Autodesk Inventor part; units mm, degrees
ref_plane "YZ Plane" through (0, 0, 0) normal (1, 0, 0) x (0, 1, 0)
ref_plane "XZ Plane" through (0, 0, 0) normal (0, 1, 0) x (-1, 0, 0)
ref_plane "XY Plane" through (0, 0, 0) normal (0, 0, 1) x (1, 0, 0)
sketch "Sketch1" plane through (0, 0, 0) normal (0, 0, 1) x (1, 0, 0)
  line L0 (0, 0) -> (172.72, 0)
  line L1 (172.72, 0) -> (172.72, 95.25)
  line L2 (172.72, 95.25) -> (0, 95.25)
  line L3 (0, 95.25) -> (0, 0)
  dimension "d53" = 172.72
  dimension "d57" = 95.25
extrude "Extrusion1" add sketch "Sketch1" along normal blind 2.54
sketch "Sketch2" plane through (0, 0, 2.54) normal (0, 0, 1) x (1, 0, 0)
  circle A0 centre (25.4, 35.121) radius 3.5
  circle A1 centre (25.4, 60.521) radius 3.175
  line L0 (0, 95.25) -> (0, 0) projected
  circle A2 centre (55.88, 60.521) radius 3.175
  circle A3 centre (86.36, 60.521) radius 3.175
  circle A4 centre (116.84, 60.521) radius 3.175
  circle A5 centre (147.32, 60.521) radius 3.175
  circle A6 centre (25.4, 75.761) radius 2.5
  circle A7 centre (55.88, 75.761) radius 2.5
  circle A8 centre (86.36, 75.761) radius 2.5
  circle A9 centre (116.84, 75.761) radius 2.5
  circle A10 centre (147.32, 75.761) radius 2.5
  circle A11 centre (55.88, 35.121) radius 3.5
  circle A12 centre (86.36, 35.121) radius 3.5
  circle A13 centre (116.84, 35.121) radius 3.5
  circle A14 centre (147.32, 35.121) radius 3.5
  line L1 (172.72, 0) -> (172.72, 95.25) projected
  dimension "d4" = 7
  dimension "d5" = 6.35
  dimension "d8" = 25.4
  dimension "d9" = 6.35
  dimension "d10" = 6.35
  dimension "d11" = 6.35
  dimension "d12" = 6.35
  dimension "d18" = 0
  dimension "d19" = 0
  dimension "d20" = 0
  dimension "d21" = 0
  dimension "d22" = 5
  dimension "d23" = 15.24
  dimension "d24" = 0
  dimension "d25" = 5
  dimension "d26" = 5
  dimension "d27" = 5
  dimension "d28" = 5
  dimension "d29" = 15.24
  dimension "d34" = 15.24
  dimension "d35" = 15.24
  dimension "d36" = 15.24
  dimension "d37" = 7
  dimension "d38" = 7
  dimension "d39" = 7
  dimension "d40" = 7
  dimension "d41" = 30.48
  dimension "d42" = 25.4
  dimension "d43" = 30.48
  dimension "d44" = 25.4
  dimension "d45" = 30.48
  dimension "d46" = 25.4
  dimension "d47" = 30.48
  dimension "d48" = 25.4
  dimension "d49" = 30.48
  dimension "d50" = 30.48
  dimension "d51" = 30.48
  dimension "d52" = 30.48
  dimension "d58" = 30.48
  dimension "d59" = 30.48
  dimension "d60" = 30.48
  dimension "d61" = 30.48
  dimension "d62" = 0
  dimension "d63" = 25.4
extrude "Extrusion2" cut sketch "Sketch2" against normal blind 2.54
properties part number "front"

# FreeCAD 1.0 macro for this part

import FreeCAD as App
import Part
import Sketcher

V = App.Vector
Q = App.Units.Quantity


def add_polygon(sketch, points):
    """Adds a closed chain of lines whose ends are joined by coincident constraints."""
    first, n = sketch.GeometryCount, len(points)
    for a, b in zip(points, points[1:] + points[:1]):
        sketch.addGeometry(Part.LineSegment(App.Vector(*a, 0), App.Vector(*b, 0)), False)
    for i in range(n):
        sketch.addConstraint(Sketcher.Constraint("Coincident", first + i, 2, first + (i + 1) % n, 1))

doc = App.newDocument("Part")
params = doc.addObject("Spreadsheet::Sheet", "Params")
for row, (alias, value) in enumerate([
    ("sketch1_width", "6.8 in"),
    ("sketch1_height", "3.75 in"),
    ("pad1_length", "0.1 in"),
    ("sketch2_diameter", "0.25 in"),
    ("pocket1_length", "0.1 in"),
], start=1):
    params.set(f"A{row}", alias)
    params.set(f"B{row}", "=" + value)
    params.setAlias(f"B{row}", alias)

body = doc.addObject("PartDesign::Body", "Body")

# Sketch on XY plane
sketch1 = body.newObject("Sketcher::SketchObject", "Sketch")
sketch1.AttachmentSupport = (doc.getObject("XY_Plane"), [""])
sketch1.MapMode = "FlatFace"
add_polygon(sketch1, [(0, 95), (0, 0), (173, 0), (173, 95)])  # lines 0-3
sketch1.addConstraint([
    Sketcher.Constraint("Vertical", 0),
    Sketcher.Constraint("Horizontal", 1),
    Sketcher.Constraint("Vertical", 2),
    Sketcher.Constraint("Horizontal", 3),
    Sketcher.Constraint("Coincident", 0, 2, -1, 1),
    Sketcher.Constraint("DistanceX", 1, 1, 1, 2, Q("6.8 in")),
    Sketcher.Constraint("DistanceY", 0, 2, 0, 1, Q("3.75 in")),
])
sketch1.setExpression("Constraints[9]", "Params.sketch1_width")
sketch1.setExpression("Constraints[10]", "Params.sketch1_height")
pad1 = body.newObject("PartDesign::Pad", "Pad")
pad1.Profile = sketch1
pad1.setExpression("Length", "Params.pad1_length")

# Sketch on XY plane
sketch2 = body.newObject("Sketcher::SketchObject", "Sketch001")
sketch2.AttachmentSupport = (doc.getObject("XY_Plane"), [""])
sketch2.MapMode = "FlatFace"
sketch2.AttachmentOffset = App.Placement(V(0, 0, 0.1 * 25.4), App.Rotation())
sketch2.addGeometry([
    Part.Circle(V(25.4, 35.1, 0), V(0, 0, 1), 3.5),  # 0
    Part.Circle(V(25.4, 60.5, 0), V(0, 0, 1), 3.2),  # 1
    Part.Circle(V(55.9, 60.5, 0), V(0, 0, 1), 3.2),  # 2
    Part.Circle(V(86.4, 60.5, 0), V(0, 0, 1), 3.2),  # 3
    Part.Circle(V(116.8, 60.5, 0), V(0, 0, 1), 3.2),  # 4
    Part.Circle(V(147.3, 60.5, 0), V(0, 0, 1), 3.2),  # 5
    Part.Circle(V(25.4, 75.8, 0), V(0, 0, 1), 2.5),  # 6
    Part.Circle(V(55.9, 75.8, 0), V(0, 0, 1), 2.5),  # 7
    Part.Circle(V(86.4, 75.8, 0), V(0, 0, 1), 2.5),  # 8
    Part.Circle(V(116.8, 75.8, 0), V(0, 0, 1), 2.5),  # 9
    Part.Circle(V(147.3, 75.8, 0), V(0, 0, 1), 2.5),  # 10
    Part.Circle(V(55.9, 35.1, 0), V(0, 0, 1), 3.5),  # 11
    Part.Circle(V(86.4, 35.1, 0), V(0, 0, 1), 3.5),  # 12
    Part.Circle(V(116.8, 35.1, 0), V(0, 0, 1), 3.5),  # 13
    Part.Circle(V(147.3, 35.1, 0), V(0, 0, 1), 3.5),  # 14
], False)
sketch2.addConstraint([
    Sketcher.Constraint("Equal", 1, 2),
    Sketcher.Constraint("Equal", 2, 3),
    Sketcher.Constraint("Equal", 3, 4),
    Sketcher.Constraint("Equal", 4, 5),
    Sketcher.Constraint("Equal", 6, 7),
    Sketcher.Constraint("Equal", 7, 8),
    Sketcher.Constraint("Equal", 8, 9),
    Sketcher.Constraint("Equal", 9, 10),
    Sketcher.Constraint("Equal", 0, 11),
    Sketcher.Constraint("Equal", 11, 12),
    Sketcher.Constraint("Equal", 12, 13),
    Sketcher.Constraint("Equal", 13, 14),
    Sketcher.Constraint("Horizontal", 1, 3, 2, 3),
    Sketcher.Constraint("Horizontal", 2, 3, 3, 3),
    Sketcher.Constraint("Horizontal", 3, 3, 4, 3),
    Sketcher.Constraint("Horizontal", 4, 3, 5, 3),
    Sketcher.Constraint("Horizontal", 6, 3, 7, 3),
    Sketcher.Constraint("Horizontal", 7, 3, 8, 3),
    Sketcher.Constraint("Horizontal", 8, 3, 9, 3),
    Sketcher.Constraint("Horizontal", 9, 3, 10, 3),
    Sketcher.Constraint("Horizontal", 0, 3, 11, 3),
    Sketcher.Constraint("Horizontal", 11, 3, 12, 3),
    Sketcher.Constraint("Horizontal", 12, 3, 13, 3),
    Sketcher.Constraint("Horizontal", 13, 3, 14, 3),
    Sketcher.Constraint("Vertical", 0, 3, 1, 3),
    Sketcher.Constraint("Vertical", 1, 3, 6, 3),
    Sketcher.Constraint("Vertical", 2, 3, 7, 3),
    Sketcher.Constraint("Vertical", 3, 3, 8, 3),
    Sketcher.Constraint("Vertical", 4, 3, 9, 3),
    Sketcher.Constraint("Vertical", 5, 3, 10, 3),
    Sketcher.Constraint("Vertical", 7, 3, 11, 3),
    Sketcher.Constraint("Vertical", 8, 3, 12, 3),
    Sketcher.Constraint("Vertical", 9, 3, 13, 3),
    Sketcher.Constraint("Vertical", 10, 3, 14, 3),
    Sketcher.Constraint("Diameter", 1, Q("0.25 in")),
    Sketcher.Constraint("DistanceX", -1, 1, 0, 3, Q("1 in")),
    Sketcher.Constraint("DistanceY", 0, 3, 1, 3, Q("1 in")),
    Sketcher.Constraint("Diameter", 0, Q("0.2756 in")),
    Sketcher.Constraint("DistanceX", 1, 3, 2, 3, Q("1.2 in")),
    Sketcher.Constraint("DistanceX", 2, 3, 3, 3, Q("1.2 in")),
    Sketcher.Constraint("DistanceX", 3, 3, 4, 3, Q("1.2 in")),
    Sketcher.Constraint("DistanceX", 4, 3, 5, 3, Q("1.2 in")),
    Sketcher.Constraint("DistanceY", 1, 3, 6, 3, Q("0.6 in")),
    Sketcher.Constraint("Diameter", 6, 5.0),
    Sketcher.Constraint("DistanceY", -1, 1, 0, 3, 35.121),
])
sketch2.setExpression("Constraints[34]", "Params.sketch2_diameter")
pocket1 = body.newObject("PartDesign::Pocket", "Pocket")
pocket1.Profile = sketch2
pocket1.setExpression("Length", "Params.pocket1_length")

doc.recompute()
